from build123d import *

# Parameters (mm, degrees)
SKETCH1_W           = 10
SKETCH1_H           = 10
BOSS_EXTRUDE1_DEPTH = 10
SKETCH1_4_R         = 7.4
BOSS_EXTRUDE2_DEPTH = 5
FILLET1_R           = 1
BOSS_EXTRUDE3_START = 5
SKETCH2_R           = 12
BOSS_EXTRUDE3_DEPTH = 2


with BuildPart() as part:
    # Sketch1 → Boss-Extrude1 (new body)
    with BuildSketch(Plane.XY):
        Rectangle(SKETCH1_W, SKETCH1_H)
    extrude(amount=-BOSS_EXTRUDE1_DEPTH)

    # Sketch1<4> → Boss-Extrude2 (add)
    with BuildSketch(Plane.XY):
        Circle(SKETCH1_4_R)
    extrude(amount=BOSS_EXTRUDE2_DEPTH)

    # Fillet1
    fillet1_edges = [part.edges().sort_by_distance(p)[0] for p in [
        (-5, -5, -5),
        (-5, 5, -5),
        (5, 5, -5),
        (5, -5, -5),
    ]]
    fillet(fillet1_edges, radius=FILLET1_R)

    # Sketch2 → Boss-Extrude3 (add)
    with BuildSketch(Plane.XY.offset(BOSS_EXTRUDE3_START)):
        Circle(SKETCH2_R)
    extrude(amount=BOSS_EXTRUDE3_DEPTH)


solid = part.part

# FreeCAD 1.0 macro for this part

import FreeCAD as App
import Part
import Sketcher
from FreeCAD import Vector


def edges_at(feature, points):
    """Names of the edges that pass closest to the given points."""
    edges = feature.Shape.Edges
    near = lambda p: min(range(len(edges)), key=lambda i: edges[i].distToShape(Part.Vertex(*p))[0])
    return sorted({f"Edge{near(p) + 1}" for p in points})

doc = App.newDocument("Part")
body = doc.addObject("PartDesign::Body", "Body")

sketch1 = body.newObject("Sketcher::SketchObject", "Sketch")
sketch1.AttachmentSupport = (doc.getObject("XY_Plane"), [""])
sketch1.MapMode = "FlatFace"
sketch1.addGeometry([
    Part.LineSegment(Vector(-5, 5, 0), Vector(-5, -5, 0)),
    Part.LineSegment(Vector(-5, -5, 0), Vector(5, -5, 0)),
    Part.LineSegment(Vector(5, -5, 0), Vector(5, 5, 0)),
    Part.LineSegment(Vector(5, 5, 0), Vector(-5, 5, 0)),
], False)
sketch1.addConstraint([
    Sketcher.Constraint("Coincident", 0, 2, 1, 1),
    Sketcher.Constraint("Coincident", 1, 2, 2, 1),
    Sketcher.Constraint("Coincident", 2, 2, 3, 1),
    Sketcher.Constraint("Coincident", 3, 2, 0, 1),
    Sketcher.Constraint("Vertical", 0),
    Sketcher.Constraint("Horizontal", 1),
    Sketcher.Constraint("Vertical", 2),
    Sketcher.Constraint("Horizontal", 3),
    Sketcher.Constraint("Symmetric", 0, 2, 2, 2, -1, 1),
    Sketcher.Constraint("Equal", 3, 0),
    Sketcher.Constraint("DistanceX", 1, 1, 1, 2, 10.0),
])
pad1 = body.newObject("PartDesign::Pad", "Pad")
pad1.Profile = sketch1
pad1.Length = 10
pad1.Reversed = True

sketch2 = body.newObject("Sketcher::SketchObject", "Sketch001")
sketch2.AttachmentSupport = (doc.getObject("XY_Plane"), [""])
sketch2.MapMode = "FlatFace"
sketch2.addGeometry(Part.Circle(Vector(0, 0, 0), Vector(0, 0, 1), 7.4), False)
sketch2.addConstraint([
    Sketcher.Constraint("Coincident", 0, 3, -1, 1),
    Sketcher.Constraint("Diameter", 0, 14.8),
])
pad2 = body.newObject("PartDesign::Pad", "Pad001")
pad2.Profile = sketch2
pad2.Length = 5
doc.recompute()

fillet = body.newObject("PartDesign::Fillet", "Fillet")
fillet.Base = (pad2, edges_at(pad2, [
    (-5, -5, -5),
    (-5, 5, -5),
    (5, 5, -5),
    (5, -5, -5),
]))
fillet.Radius = 1

sketch3 = body.newObject("Sketcher::SketchObject", "Sketch002")
sketch3.AttachmentSupport = (doc.getObject("XY_Plane"), [""])
sketch3.MapMode = "FlatFace"
sketch3.AttachmentOffset = App.Placement(Vector(0, 0, 5), App.Rotation())
sketch3.addGeometry(Part.Circle(Vector(0, 0, 0), Vector(0, 0, 1), 12), False)
sketch3.addConstraint([
    Sketcher.Constraint("Coincident", 0, 3, -1, 1),
    Sketcher.Constraint("Diameter", 0, 24.0),
])
pad3 = body.newObject("PartDesign::Pad", "Pad002")
pad3.Profile = sketch3
pad3.Length = 2

doc.recompute()
